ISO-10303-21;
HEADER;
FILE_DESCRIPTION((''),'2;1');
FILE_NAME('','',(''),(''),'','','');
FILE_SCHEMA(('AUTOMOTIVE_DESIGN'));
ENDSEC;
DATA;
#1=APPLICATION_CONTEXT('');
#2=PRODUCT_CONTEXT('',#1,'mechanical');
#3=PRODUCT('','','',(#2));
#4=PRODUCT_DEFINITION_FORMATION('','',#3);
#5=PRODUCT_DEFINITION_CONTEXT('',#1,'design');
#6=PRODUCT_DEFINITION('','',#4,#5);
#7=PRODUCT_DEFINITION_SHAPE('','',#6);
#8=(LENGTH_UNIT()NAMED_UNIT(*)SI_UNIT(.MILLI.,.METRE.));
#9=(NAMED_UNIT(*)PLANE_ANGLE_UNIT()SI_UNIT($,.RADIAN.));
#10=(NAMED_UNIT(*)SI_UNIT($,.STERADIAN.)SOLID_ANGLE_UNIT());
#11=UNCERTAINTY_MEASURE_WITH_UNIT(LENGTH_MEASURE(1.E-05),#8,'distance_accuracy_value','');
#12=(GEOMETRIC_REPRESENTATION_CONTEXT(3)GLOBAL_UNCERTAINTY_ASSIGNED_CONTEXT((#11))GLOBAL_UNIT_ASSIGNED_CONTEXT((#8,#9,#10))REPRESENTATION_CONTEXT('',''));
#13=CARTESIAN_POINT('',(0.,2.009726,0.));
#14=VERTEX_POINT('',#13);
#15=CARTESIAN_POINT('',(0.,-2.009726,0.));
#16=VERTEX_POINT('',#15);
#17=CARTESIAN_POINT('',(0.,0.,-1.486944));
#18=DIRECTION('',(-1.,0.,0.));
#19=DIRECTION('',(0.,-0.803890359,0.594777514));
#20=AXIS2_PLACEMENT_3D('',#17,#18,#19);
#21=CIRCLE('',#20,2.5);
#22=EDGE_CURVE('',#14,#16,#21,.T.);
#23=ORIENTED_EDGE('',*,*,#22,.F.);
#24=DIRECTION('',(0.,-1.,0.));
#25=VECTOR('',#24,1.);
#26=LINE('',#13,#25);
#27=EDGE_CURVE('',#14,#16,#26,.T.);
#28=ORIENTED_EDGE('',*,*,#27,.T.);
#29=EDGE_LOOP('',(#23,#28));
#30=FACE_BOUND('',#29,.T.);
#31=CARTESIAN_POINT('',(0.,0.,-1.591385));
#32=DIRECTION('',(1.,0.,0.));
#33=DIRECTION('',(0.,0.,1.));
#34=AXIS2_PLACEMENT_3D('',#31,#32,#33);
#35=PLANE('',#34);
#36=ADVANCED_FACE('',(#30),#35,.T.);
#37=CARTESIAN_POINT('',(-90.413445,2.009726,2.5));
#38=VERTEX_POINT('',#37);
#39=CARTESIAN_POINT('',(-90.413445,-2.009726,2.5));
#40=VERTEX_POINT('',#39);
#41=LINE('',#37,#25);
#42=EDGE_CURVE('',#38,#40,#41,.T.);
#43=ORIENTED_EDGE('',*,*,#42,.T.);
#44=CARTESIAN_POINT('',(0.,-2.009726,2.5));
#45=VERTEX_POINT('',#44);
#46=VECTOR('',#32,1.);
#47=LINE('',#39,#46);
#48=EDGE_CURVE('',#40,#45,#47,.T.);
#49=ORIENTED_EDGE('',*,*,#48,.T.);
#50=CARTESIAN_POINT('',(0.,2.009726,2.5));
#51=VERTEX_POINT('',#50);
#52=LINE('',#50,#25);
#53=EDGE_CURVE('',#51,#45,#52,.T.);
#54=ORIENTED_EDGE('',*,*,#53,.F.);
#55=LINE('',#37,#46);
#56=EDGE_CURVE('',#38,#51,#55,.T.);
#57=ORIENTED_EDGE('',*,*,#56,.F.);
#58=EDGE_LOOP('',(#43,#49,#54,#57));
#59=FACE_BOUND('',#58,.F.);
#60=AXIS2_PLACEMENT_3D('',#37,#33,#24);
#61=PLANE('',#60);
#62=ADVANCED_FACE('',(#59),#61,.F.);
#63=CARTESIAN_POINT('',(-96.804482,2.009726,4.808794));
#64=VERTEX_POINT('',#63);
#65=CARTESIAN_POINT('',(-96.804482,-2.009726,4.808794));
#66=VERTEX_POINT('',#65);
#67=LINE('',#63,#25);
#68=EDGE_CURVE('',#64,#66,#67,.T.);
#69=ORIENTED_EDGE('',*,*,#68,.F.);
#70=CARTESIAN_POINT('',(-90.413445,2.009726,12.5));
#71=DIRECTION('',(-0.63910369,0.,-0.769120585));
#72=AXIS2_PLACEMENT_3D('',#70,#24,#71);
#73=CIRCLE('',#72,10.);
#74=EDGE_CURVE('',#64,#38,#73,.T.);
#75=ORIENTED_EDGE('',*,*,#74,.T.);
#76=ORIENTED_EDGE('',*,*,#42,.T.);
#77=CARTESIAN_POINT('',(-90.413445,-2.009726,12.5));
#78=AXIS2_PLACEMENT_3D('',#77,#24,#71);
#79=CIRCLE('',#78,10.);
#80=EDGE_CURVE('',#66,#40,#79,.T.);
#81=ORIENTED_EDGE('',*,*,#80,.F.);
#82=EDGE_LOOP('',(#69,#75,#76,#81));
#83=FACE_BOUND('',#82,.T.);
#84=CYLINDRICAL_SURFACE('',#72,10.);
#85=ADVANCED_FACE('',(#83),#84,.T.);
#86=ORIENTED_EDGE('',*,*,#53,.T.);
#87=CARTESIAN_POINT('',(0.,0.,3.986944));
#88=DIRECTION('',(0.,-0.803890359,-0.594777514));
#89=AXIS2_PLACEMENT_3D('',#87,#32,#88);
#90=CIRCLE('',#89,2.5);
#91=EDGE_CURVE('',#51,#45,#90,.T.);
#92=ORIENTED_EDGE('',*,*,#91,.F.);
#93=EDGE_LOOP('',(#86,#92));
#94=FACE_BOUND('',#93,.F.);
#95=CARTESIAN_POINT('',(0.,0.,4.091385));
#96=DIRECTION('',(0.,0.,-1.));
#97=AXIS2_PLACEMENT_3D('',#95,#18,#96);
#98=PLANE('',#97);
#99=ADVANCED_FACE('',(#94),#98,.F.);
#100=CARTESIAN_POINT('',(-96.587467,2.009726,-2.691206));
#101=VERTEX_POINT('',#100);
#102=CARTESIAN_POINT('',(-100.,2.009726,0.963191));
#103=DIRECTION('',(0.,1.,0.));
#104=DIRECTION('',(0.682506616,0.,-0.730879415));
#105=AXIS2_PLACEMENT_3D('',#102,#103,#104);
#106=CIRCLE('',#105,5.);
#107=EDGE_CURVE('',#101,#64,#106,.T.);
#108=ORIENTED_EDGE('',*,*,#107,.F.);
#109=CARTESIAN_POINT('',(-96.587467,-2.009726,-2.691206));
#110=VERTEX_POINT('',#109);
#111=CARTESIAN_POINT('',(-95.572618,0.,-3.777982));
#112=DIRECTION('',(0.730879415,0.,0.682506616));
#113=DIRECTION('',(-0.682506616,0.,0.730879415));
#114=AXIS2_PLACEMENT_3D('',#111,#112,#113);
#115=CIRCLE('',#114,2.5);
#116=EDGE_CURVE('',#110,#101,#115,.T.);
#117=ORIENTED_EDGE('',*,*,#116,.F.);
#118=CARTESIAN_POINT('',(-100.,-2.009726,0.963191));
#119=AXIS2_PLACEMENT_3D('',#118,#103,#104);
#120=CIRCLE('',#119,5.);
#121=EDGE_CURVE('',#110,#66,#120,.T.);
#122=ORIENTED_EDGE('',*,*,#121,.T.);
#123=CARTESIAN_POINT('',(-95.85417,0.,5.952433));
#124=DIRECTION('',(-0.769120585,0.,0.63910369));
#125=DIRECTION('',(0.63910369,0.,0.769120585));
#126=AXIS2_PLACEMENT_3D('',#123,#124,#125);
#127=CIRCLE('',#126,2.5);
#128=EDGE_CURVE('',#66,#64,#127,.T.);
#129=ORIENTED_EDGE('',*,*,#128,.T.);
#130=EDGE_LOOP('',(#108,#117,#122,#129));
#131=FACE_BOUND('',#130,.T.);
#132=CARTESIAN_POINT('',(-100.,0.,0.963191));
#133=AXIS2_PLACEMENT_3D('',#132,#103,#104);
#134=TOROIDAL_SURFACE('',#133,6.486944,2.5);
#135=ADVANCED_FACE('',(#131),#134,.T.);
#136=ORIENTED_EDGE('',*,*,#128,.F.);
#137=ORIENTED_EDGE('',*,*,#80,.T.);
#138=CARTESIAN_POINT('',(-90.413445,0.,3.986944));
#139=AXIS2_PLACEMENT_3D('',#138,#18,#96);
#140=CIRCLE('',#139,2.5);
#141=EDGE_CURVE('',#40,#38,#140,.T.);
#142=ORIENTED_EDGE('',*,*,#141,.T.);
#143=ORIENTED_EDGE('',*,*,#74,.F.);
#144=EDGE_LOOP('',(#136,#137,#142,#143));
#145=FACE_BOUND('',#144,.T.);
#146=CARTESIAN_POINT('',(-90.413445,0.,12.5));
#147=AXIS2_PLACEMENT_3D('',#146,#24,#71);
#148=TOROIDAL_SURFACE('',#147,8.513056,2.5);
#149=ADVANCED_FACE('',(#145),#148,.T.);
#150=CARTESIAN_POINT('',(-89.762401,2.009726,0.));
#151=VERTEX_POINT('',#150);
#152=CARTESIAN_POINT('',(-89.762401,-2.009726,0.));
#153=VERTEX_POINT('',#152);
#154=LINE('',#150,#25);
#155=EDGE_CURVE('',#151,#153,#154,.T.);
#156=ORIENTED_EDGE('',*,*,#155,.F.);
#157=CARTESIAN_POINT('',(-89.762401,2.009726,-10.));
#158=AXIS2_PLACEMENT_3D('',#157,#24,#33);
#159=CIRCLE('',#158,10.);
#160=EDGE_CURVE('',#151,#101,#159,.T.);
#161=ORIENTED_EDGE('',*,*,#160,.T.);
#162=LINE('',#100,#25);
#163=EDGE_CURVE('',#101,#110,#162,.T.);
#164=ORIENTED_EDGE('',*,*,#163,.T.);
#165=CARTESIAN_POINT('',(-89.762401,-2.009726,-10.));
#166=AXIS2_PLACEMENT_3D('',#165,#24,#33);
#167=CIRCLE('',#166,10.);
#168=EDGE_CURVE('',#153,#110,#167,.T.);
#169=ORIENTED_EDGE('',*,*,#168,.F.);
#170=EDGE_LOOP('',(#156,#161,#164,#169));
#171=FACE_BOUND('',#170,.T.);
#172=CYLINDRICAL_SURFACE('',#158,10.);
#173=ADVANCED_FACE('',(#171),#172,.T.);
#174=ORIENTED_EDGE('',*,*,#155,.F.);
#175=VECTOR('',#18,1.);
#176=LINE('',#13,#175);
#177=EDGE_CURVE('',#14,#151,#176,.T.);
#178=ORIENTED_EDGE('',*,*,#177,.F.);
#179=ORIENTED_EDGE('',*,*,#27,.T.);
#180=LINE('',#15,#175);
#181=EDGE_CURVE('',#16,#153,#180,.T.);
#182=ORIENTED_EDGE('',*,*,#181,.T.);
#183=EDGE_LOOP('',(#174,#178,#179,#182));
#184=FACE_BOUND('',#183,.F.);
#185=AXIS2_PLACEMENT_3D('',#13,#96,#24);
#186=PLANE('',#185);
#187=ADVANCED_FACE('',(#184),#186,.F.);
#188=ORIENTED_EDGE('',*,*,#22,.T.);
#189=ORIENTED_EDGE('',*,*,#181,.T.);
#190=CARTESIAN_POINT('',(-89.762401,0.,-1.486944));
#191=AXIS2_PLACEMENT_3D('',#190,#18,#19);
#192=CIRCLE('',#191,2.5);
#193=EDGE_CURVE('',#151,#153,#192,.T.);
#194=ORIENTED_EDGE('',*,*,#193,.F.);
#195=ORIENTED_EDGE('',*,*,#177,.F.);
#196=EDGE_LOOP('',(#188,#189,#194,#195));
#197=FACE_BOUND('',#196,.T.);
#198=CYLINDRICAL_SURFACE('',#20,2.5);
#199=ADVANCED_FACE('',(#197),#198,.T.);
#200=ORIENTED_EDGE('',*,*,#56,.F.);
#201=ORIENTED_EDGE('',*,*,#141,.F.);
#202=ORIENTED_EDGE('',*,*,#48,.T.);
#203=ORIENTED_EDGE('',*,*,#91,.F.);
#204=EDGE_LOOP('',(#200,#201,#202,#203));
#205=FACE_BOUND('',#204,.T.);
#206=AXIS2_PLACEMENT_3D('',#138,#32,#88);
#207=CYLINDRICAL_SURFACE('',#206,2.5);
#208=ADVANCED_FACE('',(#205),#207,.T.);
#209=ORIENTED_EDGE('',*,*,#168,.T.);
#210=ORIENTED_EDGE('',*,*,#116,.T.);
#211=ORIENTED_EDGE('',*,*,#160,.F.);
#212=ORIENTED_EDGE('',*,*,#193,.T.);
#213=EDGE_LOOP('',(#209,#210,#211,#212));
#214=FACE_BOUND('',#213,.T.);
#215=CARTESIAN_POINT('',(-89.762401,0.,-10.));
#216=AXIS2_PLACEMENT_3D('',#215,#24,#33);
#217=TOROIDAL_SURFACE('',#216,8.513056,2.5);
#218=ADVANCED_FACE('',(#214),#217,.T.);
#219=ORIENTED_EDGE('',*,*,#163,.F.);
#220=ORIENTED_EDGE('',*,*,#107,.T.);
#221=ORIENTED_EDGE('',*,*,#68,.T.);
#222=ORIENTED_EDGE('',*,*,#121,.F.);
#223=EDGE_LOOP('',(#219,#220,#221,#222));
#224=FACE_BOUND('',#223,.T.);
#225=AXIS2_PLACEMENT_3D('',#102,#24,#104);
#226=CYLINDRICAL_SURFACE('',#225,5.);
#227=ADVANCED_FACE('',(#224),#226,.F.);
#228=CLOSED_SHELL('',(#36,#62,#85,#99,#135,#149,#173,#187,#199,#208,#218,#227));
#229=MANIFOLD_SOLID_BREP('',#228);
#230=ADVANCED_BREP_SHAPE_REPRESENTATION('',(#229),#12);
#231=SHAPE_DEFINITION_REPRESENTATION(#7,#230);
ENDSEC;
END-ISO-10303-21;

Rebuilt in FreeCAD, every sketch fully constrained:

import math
import FreeCAD as App
import Part
import Sketcher

V = App.Vector
Q = App.Units.Quantity

doc = App.newDocument("Part")
params = doc.addObject("Spreadsheet::Sheet", "Params")
for row, (alias, value) in enumerate([
    ("sketch1_radius", "2.5 mm"),
    ("sketch2_radius", "10 mm"),
    ("sketch2_radius2", "5 mm"),
], start=1):
    params.set(f"A{row}", alias)
    params.set(f"B{row}", "=" + value)
    params.setAlias(f"B{row}", alias)

body = doc.addObject("PartDesign::Body", "Body")

sketch1 = body.newObject("Sketcher::SketchObject", "Sketch")
sketch1.AttachmentSupport = (doc.getObject("YZ_Plane"), [""])
sketch1.MapMode = "FlatFace"
sketch1.addGeometry([
    Part.ArcOfCircle(Part.Circle(V(0, -1.5, 0), V(0, 0, 1), 2.5), math.radians(144), math.radians(396)),
    Part.LineSegment(V(2, 0, 0), V(-2, 0, 0)),
], False)
sketch1.addConstraint([
    Sketcher.Constraint("Coincident", 0, 1, 1, 2),
    Sketcher.Constraint("Coincident", 1, 1, 0, 2),
    Sketcher.Constraint("Horizontal", 1),
    Sketcher.Constraint("Symmetric", 0, 1, 1, 1, -1, 1),
    Sketcher.Constraint("Radius", 0, Q("2.5 mm")),
    Sketcher.Constraint("DistanceX", 1, 2, 1, 1, Q("4.019452 mm")),
])
sketch1.setExpression("Constraints[4]", "Params.sketch1_radius")

sketch2 = body.newObject("Sketcher::SketchObject", "Sketch001")
sketch2.AttachmentSupport = (doc.getObject("XZ_Plane"), [""])
sketch2.MapMode = "FlatFace"
sketch2.addGeometry([
    Part.LineSegment(V(0, 0, 0), V(-90, 0, 0)),
    Part.ArcOfCircle(Part.Circle(V(-90, -10, 0), V(0, 0, 1), 10), math.radians(90), math.radians(133)),
    Part.ArcOfCircle(Part.Circle(V(-100, 1, 0), V(0, 0, 1), 5), math.radians(50), math.radians(313)),
    Part.ArcOfCircle(Part.Circle(V(-90, 12, 0), V(0, 0, 1), 10), math.radians(-130), math.radians(-90)),
    Part.LineSegment(V(-90, 2, 0), V(0, 2, 0)),
], False)
sketch2.addConstraint([
    Sketcher.Constraint("Tangent", 0, 2, 1, 1),
    Sketcher.Constraint("Tangent", 1, 2, 2, 2),
    Sketcher.Constraint("Tangent", 2, 1, 3, 1),
    Sketcher.Constraint("Tangent", 3, 2, 4, 1),
    Sketcher.Constraint("Horizontal", 0),
    Sketcher.Constraint("Horizontal", 4),
    Sketcher.Constraint("Coincident", 0, 1, -1, 1),
    Sketcher.Constraint("Equal", 1, 3),
    Sketcher.Constraint("PointOnObject", 4, 2, -2),
    Sketcher.Constraint("Radius", 1, Q("10 mm")),
    Sketcher.Constraint("Radius", 2, Q("5 mm")),
    Sketcher.Constraint("DistanceX", 2, 3, -1, 1, Q("100 mm")),
    Sketcher.Constraint("DistanceY", -1, 1, 3, 3, Q("12.5 mm")),
    Sketcher.Constraint("DistanceX", 0, 2, 0, 1, Q("89.762401 mm")),
])
sketch2.setExpression("Constraints[9]", "Params.sketch2_radius")
sketch2.setExpression("Constraints[10]", "Params.sketch2_radius2")
doc.recompute()

additivepipe = body.newObject("PartDesign::AdditivePipe", "AdditivePipe")
additivepipe.Profile = sketch1
additivepipe.Spine = (sketch2, ["Edge1", "Edge2", "Edge3", "Edge4", "Edge5"])

doc.recompute()
